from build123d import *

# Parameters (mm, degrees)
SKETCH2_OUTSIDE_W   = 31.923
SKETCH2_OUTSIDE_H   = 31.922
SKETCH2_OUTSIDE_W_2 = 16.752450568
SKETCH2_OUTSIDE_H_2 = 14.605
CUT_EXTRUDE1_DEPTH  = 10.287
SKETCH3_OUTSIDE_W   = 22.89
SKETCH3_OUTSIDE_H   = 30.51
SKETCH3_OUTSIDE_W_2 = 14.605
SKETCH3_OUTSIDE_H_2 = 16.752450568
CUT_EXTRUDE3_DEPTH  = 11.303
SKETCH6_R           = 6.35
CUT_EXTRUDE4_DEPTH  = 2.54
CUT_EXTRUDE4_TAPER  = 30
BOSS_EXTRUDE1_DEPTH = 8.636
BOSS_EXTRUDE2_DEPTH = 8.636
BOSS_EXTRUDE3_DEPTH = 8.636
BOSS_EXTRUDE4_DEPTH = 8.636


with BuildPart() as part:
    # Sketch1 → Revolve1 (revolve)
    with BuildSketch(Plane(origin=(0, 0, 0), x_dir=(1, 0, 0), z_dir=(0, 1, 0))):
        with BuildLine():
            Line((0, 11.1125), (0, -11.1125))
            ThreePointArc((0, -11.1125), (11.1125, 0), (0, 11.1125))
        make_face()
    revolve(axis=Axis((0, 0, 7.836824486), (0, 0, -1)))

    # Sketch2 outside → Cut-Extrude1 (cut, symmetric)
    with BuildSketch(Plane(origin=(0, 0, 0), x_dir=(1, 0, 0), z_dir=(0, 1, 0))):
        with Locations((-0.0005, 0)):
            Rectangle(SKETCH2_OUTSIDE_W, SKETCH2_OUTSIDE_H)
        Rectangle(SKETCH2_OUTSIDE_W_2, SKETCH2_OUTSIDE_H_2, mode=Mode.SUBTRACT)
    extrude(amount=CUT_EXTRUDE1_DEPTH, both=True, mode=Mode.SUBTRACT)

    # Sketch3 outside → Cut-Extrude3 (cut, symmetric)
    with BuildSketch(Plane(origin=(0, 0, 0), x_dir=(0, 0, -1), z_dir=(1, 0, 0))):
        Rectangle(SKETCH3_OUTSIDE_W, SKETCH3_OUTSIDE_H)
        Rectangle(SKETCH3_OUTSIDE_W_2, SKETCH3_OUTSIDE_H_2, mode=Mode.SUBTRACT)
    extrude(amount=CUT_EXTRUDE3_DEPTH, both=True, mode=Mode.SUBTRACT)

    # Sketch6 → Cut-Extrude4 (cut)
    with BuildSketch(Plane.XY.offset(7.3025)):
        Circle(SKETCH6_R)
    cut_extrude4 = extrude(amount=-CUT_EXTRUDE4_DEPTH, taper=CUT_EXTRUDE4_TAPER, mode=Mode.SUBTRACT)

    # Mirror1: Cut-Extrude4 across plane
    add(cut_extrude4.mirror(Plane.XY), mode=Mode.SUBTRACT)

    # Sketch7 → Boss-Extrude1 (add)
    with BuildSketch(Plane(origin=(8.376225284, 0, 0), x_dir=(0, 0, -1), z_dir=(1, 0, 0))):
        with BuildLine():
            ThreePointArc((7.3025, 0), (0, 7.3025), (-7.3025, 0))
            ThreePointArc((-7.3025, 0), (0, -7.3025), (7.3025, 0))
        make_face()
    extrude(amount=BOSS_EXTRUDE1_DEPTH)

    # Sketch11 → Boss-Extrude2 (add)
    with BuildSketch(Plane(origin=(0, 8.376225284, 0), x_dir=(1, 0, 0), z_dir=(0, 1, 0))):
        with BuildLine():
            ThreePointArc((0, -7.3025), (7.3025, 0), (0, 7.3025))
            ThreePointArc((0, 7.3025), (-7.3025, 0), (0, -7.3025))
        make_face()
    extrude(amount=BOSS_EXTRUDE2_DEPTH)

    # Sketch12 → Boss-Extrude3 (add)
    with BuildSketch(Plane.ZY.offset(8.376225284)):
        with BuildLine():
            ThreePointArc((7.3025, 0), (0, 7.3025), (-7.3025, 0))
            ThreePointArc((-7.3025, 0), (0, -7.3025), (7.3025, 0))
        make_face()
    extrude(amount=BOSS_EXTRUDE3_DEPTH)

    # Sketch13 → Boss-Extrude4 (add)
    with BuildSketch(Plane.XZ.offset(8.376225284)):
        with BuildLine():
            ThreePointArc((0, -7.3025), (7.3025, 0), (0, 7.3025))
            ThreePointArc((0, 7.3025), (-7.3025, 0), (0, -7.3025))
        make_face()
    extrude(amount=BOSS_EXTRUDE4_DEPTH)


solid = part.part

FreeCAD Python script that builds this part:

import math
import FreeCAD as App
import Part
import Sketcher
from FreeCAD import Vector
Q = App.Units.Quantity

doc = App.newDocument("Part")
body = doc.addObject("PartDesign::Body", "Body")

sketch1 = body.newObject("Sketcher::SketchObject", "Sketch")
sketch1.AttachmentSupport = (doc.getObject("XZ_Plane"), [""])
sketch1.MapMode = "FlatFace"
sketch1.addGeometry([
    Part.LineSegment(Vector(0, -11, 0), Vector(0, 11, 0)),
    Part.ArcOfCircle(Part.Circle(Vector(0, 0, 0), Vector(0, 0, 1), 11), math.radians(-90), math.radians(90)),
], False)
sketch1.addConstraint([
    Sketcher.Constraint("Coincident", 0, 1, 1, 1),
    Sketcher.Constraint("Coincident", 1, 2, 0, 2),
    Sketcher.Constraint("Vertical", 0),
    Sketcher.Constraint("Coincident", 1, 3, -1, 1),
    Sketcher.Constraint("PointOnObject", 0, 1, -2),
    Sketcher.Constraint("Radius", 1, Q("0.4375 in")),
])
revolution = body.newObject("PartDesign::Revolution", "Revolution")
revolution.Profile = sketch1
revolution.ReferenceAxis = (sketch1, ["V_Axis"])
revolution.Angle = 360

sketch2 = body.newObject("Sketcher::SketchObject", "Sketch001")
sketch2.AttachmentSupport = (doc.getObject("XZ_Plane"), [""])
sketch2.MapMode = "FlatFace"
sketch2.addGeometry([
    Part.LineSegment(Vector(-16, -16, 0), Vector(-16, 16, 0)),
    Part.LineSegment(Vector(-16, 16, 0), Vector(16, 16, 0)),
    Part.LineSegment(Vector(16, 16, 0), Vector(16, -16, 0)),
    Part.LineSegment(Vector(16, -16, 0), Vector(-16, -16, 0)),
    Part.LineSegment(Vector(8, 7, 0), Vector(-8, 7, 0)),
    Part.LineSegment(Vector(-8, 7, 0), Vector(-8, -7, 0)),
    Part.LineSegment(Vector(-8, -7, 0), Vector(8, -7, 0)),
    Part.LineSegment(Vector(8, -7, 0), Vector(8, 7, 0)),
], False)
sketch2.addConstraint([
    Sketcher.Constraint("Coincident", 0, 2, 1, 1),
    Sketcher.Constraint("Coincident", 1, 2, 2, 1),
    Sketcher.Constraint("Coincident", 2, 2, 3, 1),
    Sketcher.Constraint("Coincident", 3, 2, 0, 1),
    Sketcher.Constraint("Coincident", 4, 2, 5, 1),
    Sketcher.Constraint("Coincident", 5, 2, 6, 1),
    Sketcher.Constraint("Coincident", 6, 2, 7, 1),
    Sketcher.Constraint("Coincident", 7, 2, 4, 1),
    Sketcher.Constraint("Vertical", 0),
    Sketcher.Constraint("Horizontal", 1),
    Sketcher.Constraint("Vertical", 2),
    Sketcher.Constraint("Horizontal", 3),
    Sketcher.Constraint("Horizontal", 4),
    Sketcher.Constraint("Vertical", 5),
    Sketcher.Constraint("Horizontal", 6),
    Sketcher.Constraint("Vertical", 7),
    Sketcher.Constraint("Symmetric", 4, 2, 6, 2, -1, 1),
    Sketcher.Constraint("DistanceY", 5, 2, 5, 1, Q("0.575 in")),
    Sketcher.Constraint("DistanceX", 1, 1, 1, 2, Q("31.923 mm")),
    Sketcher.Constraint("DistanceY", 0, 1, 0, 2, Q("31.922 mm")),
    Sketcher.Constraint("DistanceX", 4, 2, 4, 1, Q("16.752451 mm")),
    Sketcher.Constraint("DistanceX", 0, 2, -1, 1, Q("15.962 mm")),
    Sketcher.Constraint("DistanceY", -1, 1, 0, 2, Q("15.961 mm")),
])
pocket1 = body.newObject("PartDesign::Pocket", "Pocket")
pocket1.Profile = sketch2
pocket1.Length = Q("0.81 in")
pocket1.Midplane = True

sketch3 = body.newObject("Sketcher::SketchObject", "Sketch002")
sketch3.AttachmentSupport = (doc.getObject("YZ_Plane"), [""])
sketch3.MapMode = "FlatFace"
sketch3.addGeometry([
    Part.LineSegment(Vector(15, 11, 0), Vector(-15, 11, 0)),
    Part.LineSegment(Vector(-15, 11, 0), Vector(-15, -11, 0)),
    Part.LineSegment(Vector(-15, -11, 0), Vector(15, -11, 0)),
    Part.LineSegment(Vector(15, -11, 0), Vector(15, 11, 0)),
    Part.LineSegment(Vector(-8, -7, 0), Vector(-8, 7, 0)),
    Part.LineSegment(Vector(-8, 7, 0), Vector(8, 7, 0)),
    Part.LineSegment(Vector(8, 7, 0), Vector(8, -7, 0)),
    Part.LineSegment(Vector(8, -7, 0), Vector(-8, -7, 0)),
], False)
sketch3.addConstraint([
    Sketcher.Constraint("Coincident", 0, 2, 1, 1),
    Sketcher.Constraint("Coincident", 1, 2, 2, 1),
    Sketcher.Constraint("Coincident", 2, 2, 3, 1),
    Sketcher.Constraint("Coincident", 3, 2, 0, 1),
    Sketcher.Constraint("Coincident", 4, 2, 5, 1),
    Sketcher.Constraint("Coincident", 5, 2, 6, 1),
    Sketcher.Constraint("Coincident", 6, 2, 7, 1),
    Sketcher.Constraint("Coincident", 7, 2, 4, 1),
    Sketcher.Constraint("Horizontal", 0),
    Sketcher.Constraint("Vertical", 1),
    Sketcher.Constraint("Horizontal", 2),
    Sketcher.Constraint("Vertical", 3),
    Sketcher.Constraint("Vertical", 4),
    Sketcher.Constraint("Horizontal", 5),
    Sketcher.Constraint("Vertical", 6),
    Sketcher.Constraint("Horizontal", 7),
    Sketcher.Constraint("Symmetric", 0, 2, 2, 2, -1, 1),
    Sketcher.Constraint("Symmetric", 4, 2, 6, 2, -1, 1),
    Sketcher.Constraint("DistanceY", 4, 1, 4, 2, Q("0.575 in")),
    Sketcher.Constraint("DistanceX", 0, 2, 0, 1, Q("30.51 mm")),
    Sketcher.Constraint("DistanceY", 1, 2, 1, 1, Q("22.89 mm")),
    Sketcher.Constraint("DistanceX", 5, 1, 5, 2, Q("16.752451 mm")),
])
pocket2 = body.newObject("PartDesign::Pocket", "Pocket001")
pocket2.Profile = sketch3
pocket2.Length = Q("0.89 in")
pocket2.Midplane = True

sketch4 = body.newObject("Sketcher::SketchObject", "Sketch003")
sketch4.AttachmentSupport = (doc.getObject("XY_Plane"), [""])
sketch4.MapMode = "FlatFace"
sketch4.AttachmentOffset = App.Placement(Vector(0, 0, 0.2875 * 25.4), App.Rotation())
sketch4.addGeometry(Part.Circle(Vector(0, 0, 0), Vector(0, 0, 1), 6), False)
sketch4.addConstraint([
    Sketcher.Constraint("Coincident", 0, 3, -1, 1),
    Sketcher.Constraint("Diameter", 0, Q("0.5 in")),
])
pocket3 = body.newObject("PartDesign::Pocket", "Pocket002")
pocket3.Profile = sketch4
pocket3.Length = Q("0.1 in")
pocket3.TaperAngle = -30
doc.recompute()

mirrored = body.newObject("PartDesign::Mirrored", "Mirrored")
mirrored.Originals = [pocket3]
mirrored.MirrorPlane = (doc.getObject("XY_Plane"), [""])
body.Tip = mirrored

sketch5 = body.newObject("Sketcher::SketchObject", "Sketch004")
sketch5.AttachmentSupport = (doc.getObject("YZ_Plane"), [""])
sketch5.MapMode = "FlatFace"
sketch5.AttachmentOffset = App.Placement(Vector(0, 0, 8.376225), App.Rotation())
sketch5.addGeometry(Part.Circle(Vector(0, 0, 0), Vector(0, 0, 1), 7), False)
sketch5.addConstraint([
    Sketcher.Constraint("Coincident", 0, 3, -1, 1),
    Sketcher.Constraint("Diameter", 0, Q("0.575 in")),
])
pad1 = body.newObject("PartDesign::Pad", "Pad")
pad1.Profile = sketch5
pad1.Length = Q("0.34 in")

sketch6 = body.newObject("Sketcher::SketchObject", "Sketch005")
sketch6.AttachmentSupport = (doc.getObject("XZ_Plane"), [""])
sketch6.MapMode = "FlatFace"
sketch6.AttachmentOffset = App.Placement(Vector(0, 0, -8.376225), App.Rotation())
sketch6.addGeometry(Part.Circle(Vector(0, 0, 0), Vector(0, 0, 1), 7), False)
sketch6.addConstraint([
    Sketcher.Constraint("Coincident", 0, 3, -1, 1),
    Sketcher.Constraint("Diameter", 0, Q("0.575 in")),
])
pad2 = body.newObject("PartDesign::Pad", "Pad001")
pad2.Profile = sketch6
pad2.Length = Q("0.34 in")
pad2.Reversed = True

sketch7 = body.newObject("Sketcher::SketchObject", "Sketch006")
sketch7.AttachmentSupport = (doc.getObject("YZ_Plane"), [""])
sketch7.MapMode = "FlatFace"
sketch7.AttachmentOffset = App.Placement(Vector(0, 0, -8.376225), App.Rotation())
sketch7.addGeometry(Part.Circle(Vector(0, 0, 0), Vector(0, 0, 1), 7), False)
sketch7.addConstraint([
    Sketcher.Constraint("Coincident", 0, 3, -1, 1),
    Sketcher.Constraint("Diameter", 0, Q("0.575 in")),
])
pad3 = body.newObject("PartDesign::Pad", "Pad002")
pad3.Profile = sketch7
pad3.Length = Q("0.34 in")
pad3.Reversed = True

sketch8 = body.newObject("Sketcher::SketchObject", "Sketch007")
sketch8.AttachmentSupport = (doc.getObject("XZ_Plane"), [""])
sketch8.MapMode = "FlatFace"
sketch8.AttachmentOffset = App.Placement(Vector(0, 0, 8.376225), App.Rotation())
sketch8.addGeometry(Part.Circle(Vector(0, 0, 0), Vector(0, 0, 1), 7), False)
sketch8.addConstraint([
    Sketcher.Constraint("Coincident", 0, 3, -1, 1),
    Sketcher.Constraint("Diameter", 0, Q("0.575 in")),
])
pad4 = body.newObject("PartDesign::Pad", "Pad003")
pad4.Profile = sketch8
pad4.Length = Q("0.34 in")

doc.recompute()
